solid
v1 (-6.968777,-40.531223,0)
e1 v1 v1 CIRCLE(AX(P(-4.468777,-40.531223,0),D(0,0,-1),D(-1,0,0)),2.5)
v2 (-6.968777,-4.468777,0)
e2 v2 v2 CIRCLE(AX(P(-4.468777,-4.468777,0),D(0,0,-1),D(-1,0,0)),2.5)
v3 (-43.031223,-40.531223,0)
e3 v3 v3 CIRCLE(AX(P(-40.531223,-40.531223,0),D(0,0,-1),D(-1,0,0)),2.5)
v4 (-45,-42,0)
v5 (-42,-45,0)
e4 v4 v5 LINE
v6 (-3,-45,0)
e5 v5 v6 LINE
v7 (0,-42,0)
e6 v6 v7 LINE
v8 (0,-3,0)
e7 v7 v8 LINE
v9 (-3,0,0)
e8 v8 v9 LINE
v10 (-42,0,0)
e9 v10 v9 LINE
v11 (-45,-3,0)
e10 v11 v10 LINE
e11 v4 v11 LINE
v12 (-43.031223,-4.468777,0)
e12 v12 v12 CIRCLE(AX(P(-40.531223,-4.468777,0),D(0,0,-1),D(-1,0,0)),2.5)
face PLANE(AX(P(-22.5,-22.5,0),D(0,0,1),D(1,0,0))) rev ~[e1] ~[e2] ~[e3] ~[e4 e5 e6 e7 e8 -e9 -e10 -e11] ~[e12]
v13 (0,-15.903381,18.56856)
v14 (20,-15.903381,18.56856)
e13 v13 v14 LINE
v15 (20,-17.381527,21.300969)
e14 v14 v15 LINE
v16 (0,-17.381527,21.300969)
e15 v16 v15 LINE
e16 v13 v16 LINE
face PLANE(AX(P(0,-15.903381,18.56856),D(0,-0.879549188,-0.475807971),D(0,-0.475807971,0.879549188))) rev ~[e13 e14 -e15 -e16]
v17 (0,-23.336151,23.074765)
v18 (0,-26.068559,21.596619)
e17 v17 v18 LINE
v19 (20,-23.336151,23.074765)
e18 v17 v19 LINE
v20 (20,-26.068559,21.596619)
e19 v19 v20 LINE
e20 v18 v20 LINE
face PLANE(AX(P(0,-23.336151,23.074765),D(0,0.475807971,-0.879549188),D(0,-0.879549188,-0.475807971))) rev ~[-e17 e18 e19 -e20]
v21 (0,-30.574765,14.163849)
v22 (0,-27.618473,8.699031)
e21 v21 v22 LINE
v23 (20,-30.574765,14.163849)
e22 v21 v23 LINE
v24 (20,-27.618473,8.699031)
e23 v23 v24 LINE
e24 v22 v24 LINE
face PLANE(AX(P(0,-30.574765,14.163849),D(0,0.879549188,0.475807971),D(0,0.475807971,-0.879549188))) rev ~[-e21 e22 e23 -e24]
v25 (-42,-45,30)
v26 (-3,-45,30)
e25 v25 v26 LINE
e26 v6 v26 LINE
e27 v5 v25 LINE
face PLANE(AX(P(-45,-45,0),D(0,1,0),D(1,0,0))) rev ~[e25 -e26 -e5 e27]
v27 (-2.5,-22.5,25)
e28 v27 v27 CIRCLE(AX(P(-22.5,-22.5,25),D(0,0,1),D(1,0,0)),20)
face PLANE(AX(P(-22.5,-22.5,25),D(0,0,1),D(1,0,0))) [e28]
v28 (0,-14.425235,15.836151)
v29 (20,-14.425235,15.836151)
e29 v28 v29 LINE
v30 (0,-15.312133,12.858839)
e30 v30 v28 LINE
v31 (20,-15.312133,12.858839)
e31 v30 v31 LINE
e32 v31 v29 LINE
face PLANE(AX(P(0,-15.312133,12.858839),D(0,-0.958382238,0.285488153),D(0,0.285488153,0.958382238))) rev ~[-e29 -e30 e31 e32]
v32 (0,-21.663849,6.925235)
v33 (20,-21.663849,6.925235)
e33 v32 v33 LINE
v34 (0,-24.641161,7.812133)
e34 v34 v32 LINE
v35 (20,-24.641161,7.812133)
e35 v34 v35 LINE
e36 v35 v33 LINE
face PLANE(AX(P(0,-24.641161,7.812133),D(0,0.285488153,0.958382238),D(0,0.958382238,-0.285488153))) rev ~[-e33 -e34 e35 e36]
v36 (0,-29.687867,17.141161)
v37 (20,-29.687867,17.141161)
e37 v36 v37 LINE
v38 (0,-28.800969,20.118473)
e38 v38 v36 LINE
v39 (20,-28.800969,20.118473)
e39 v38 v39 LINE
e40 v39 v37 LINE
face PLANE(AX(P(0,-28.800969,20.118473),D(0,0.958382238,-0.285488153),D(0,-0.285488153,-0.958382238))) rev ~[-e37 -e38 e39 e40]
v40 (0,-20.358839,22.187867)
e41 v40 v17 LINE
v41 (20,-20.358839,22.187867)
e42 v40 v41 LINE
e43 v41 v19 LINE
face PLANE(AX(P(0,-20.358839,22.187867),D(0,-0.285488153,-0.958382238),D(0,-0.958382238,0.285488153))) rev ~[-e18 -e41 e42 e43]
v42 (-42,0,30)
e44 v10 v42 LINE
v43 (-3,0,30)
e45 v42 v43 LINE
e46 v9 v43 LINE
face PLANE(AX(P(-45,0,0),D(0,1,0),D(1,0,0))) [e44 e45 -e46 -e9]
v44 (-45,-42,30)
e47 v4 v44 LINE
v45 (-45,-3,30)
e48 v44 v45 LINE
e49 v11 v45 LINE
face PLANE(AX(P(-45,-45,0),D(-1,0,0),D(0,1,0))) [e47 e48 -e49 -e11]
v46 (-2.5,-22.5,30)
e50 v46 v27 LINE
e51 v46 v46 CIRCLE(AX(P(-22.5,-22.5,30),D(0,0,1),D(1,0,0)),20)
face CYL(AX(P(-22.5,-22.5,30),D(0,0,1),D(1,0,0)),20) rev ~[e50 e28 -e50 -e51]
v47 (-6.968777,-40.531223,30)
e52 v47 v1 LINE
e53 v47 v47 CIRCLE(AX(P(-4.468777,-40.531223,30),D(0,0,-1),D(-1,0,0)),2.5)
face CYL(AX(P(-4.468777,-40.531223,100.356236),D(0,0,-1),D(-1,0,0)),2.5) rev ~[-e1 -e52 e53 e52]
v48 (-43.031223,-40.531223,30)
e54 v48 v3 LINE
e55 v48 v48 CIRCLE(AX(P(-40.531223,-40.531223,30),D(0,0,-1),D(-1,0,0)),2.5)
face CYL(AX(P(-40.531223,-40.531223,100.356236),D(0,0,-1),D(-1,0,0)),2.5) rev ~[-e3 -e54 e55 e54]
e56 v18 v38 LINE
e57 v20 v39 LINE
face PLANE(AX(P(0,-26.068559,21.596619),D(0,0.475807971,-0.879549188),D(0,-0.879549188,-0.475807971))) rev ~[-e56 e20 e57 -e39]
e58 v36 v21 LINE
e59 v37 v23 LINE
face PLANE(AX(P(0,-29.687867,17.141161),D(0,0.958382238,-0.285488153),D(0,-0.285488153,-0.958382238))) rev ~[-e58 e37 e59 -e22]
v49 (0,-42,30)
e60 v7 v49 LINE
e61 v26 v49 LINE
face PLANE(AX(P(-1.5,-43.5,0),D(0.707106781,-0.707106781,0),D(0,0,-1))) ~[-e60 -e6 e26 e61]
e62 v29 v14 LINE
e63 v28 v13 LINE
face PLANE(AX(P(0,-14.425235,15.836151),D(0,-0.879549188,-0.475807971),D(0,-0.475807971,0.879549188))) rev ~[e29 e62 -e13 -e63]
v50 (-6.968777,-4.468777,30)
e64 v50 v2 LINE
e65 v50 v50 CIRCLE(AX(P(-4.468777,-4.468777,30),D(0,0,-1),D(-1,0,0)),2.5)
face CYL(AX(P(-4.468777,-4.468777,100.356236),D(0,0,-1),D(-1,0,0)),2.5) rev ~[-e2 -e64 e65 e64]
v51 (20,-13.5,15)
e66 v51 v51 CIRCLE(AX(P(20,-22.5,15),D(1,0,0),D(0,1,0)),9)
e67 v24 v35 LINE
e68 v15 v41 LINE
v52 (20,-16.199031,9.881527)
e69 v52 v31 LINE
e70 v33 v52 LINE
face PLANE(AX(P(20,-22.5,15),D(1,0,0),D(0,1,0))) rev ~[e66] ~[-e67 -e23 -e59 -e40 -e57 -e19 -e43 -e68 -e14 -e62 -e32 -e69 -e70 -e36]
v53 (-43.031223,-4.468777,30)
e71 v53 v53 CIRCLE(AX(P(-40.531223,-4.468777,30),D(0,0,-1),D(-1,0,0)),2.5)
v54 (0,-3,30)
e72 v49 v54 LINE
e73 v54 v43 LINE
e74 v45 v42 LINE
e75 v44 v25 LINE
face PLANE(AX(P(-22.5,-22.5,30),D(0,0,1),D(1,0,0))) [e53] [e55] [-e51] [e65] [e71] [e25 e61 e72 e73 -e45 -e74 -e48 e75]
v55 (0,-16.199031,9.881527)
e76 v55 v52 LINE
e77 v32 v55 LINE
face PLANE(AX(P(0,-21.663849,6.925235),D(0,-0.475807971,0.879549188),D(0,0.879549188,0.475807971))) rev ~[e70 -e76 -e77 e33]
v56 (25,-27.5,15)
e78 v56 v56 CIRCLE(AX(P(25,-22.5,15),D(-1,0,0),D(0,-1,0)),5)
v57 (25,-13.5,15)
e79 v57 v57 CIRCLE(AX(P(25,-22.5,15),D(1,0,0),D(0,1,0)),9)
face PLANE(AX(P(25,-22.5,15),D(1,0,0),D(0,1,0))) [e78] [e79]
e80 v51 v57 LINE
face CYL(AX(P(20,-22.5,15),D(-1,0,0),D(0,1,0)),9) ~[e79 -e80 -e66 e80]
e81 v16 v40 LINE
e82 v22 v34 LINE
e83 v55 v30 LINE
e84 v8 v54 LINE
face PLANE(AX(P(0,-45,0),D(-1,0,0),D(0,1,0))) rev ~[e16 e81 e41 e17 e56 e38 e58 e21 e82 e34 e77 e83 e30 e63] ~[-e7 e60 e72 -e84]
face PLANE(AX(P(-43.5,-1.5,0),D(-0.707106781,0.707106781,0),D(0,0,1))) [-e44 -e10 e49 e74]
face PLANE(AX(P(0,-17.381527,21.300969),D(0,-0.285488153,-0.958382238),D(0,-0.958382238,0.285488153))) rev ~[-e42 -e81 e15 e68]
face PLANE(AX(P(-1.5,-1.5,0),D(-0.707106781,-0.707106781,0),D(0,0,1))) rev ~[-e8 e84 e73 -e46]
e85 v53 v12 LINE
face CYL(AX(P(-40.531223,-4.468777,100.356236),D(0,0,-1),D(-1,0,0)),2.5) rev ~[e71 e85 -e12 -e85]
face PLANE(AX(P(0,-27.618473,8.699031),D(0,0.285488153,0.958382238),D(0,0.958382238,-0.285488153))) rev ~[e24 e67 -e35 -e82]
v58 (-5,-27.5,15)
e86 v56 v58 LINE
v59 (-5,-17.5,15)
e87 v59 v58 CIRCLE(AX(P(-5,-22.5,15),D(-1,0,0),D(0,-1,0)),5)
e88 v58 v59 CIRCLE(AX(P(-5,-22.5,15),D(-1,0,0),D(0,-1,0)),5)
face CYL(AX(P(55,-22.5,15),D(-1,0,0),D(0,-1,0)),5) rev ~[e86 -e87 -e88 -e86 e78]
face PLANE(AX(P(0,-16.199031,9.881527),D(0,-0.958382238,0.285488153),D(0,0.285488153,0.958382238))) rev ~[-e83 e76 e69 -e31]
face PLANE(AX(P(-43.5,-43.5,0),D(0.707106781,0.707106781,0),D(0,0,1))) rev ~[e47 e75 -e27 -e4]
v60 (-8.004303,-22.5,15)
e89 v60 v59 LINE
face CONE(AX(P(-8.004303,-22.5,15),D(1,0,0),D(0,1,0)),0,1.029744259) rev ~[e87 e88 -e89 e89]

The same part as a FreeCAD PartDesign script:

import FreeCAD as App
import Part
import Sketcher


def edges_at(feature, points):
    """Names of the edges that pass closest to the given points."""
    edges = feature.Shape.Edges
    near = lambda p: min(range(len(edges)), key=lambda i: edges[i].distToShape(Part.Vertex(*p))[0])
    return sorted({f"Edge{near(p) + 1}" for p in points})


def add_polygon(sketch, points):
    """Adds a closed chain of lines whose ends are joined by coincident constraints."""
    first, n = sketch.GeometryCount, len(points)
    for a, b in zip(points, points[1:] + points[:1]):
        sketch.addGeometry(Part.LineSegment(App.Vector(*a, 0), App.Vector(*b, 0)), False)
    for i in range(n):
        sketch.addConstraint(Sketcher.Constraint("Coincident", first + i, 2, first + (i + 1) % n, 1))

doc = App.newDocument("Part")
body = doc.addObject("PartDesign::Body", "Body")

# Sketch on XY plane
sketch1 = doc.addObject("Sketcher::SketchObject", "Sketch")
body.addObject(sketch1)
sketch1.AttachmentSupport = (doc.XY_Plane, [""])
sketch1.MapMode = "FlatFace"
add_polygon(sketch1, [(-45, 0), (-45, -45), (0, -45), (0, 0)])  # lines 0-3
sketch1.addConstraint(Sketcher.Constraint("Vertical", 0))
sketch1.addConstraint(Sketcher.Constraint("Horizontal", 1))
sketch1.addConstraint(Sketcher.Constraint("Vertical", 2))
sketch1.addConstraint(Sketcher.Constraint("Horizontal", 3))
sketch1.addConstraint(Sketcher.Constraint("Coincident", 2, 2, -1, 1))
sketch1.addConstraint(Sketcher.Constraint("Equal", 3, 0))
sketch1.addConstraint(Sketcher.Constraint("DistanceX", 1, 1, 1, 2, 45.0))
pad1 = doc.addObject("PartDesign::Pad", "Pad")
body.addObject(pad1)
pad1.Profile = sketch1
pad1.Length = 30
doc.recompute()

chamfer = doc.addObject("PartDesign::Chamfer", "Chamfer")
body.addObject(chamfer)
chamfer.Base = (pad1, edges_at(pad1, [
    (-45, -45, 15),
    (0, -45, 15),
    (0, 0, 15),
    (-45, 0, 15),
]))
chamfer.Size = 3

# Sketch on XY plane
sketch2 = doc.addObject("Sketcher::SketchObject", "Sketch001")
body.addObject(sketch2)
sketch2.AttachmentSupport = (doc.XY_Plane, [""])
sketch2.MapMode = "FlatFace"
sketch2.AttachmentOffset = App.Placement(App.Vector(0, 0, 30), App.Rotation())
sketch2.addGeometry(Part.Circle(App.Vector(-40.5, -40.5, 0), App.Vector(0, 0, 1), 2.5), False)
sketch2.addGeometry(Part.Circle(App.Vector(-40.5, -4.5, 0), App.Vector(0, 0, 1), 2.5), False)
sketch2.addGeometry(Part.Circle(App.Vector(-4.5, -4.5, 0), App.Vector(0, 0, 1), 2.5), False)
sketch2.addGeometry(Part.Circle(App.Vector(-4.5, -40.5, 0), App.Vector(0, 0, 1), 2.5), False)
sketch2.addConstraint(Sketcher.Constraint("Equal", 0, 1))
sketch2.addConstraint(Sketcher.Constraint("Equal", 1, 2))
sketch2.addConstraint(Sketcher.Constraint("Equal", 2, 3))
sketch2.addConstraint(Sketcher.Constraint("Horizontal", 1, 3, 2, 3))
sketch2.addConstraint(Sketcher.Constraint("Horizontal", 0, 3, 3, 3))
sketch2.addConstraint(Sketcher.Constraint("Vertical", 0, 3, 1, 3))
sketch2.addConstraint(Sketcher.Constraint("Vertical", 2, 3, 3, 3))
sketch2.addConstraint(Sketcher.Constraint("Diameter", 0, 5.0))
sketch2.addConstraint(Sketcher.Constraint("DistanceX", 0, 3, -1, 1, 40.531223))
sketch2.addConstraint(Sketcher.Constraint("DistanceY", 0, 3, -1, 1, 40.531223))
sketch2.addConstraint(Sketcher.Constraint("DistanceY", 1, 3, -1, 1, 4.468777))
sketch2.addConstraint(Sketcher.Constraint("DistanceX", 2, 3, -1, 1, 4.468777))
doc.recompute()
hole = doc.addObject("PartDesign::Hole", "Hole")
body.addObject(hole)
hole.Profile = sketch2
hole.ThreadType = "None"
hole.Diameter = 5
hole.DepthType = "ThroughAll"

# Sketch on YZ plane
sketch3 = doc.addObject("Sketcher::SketchObject", "Sketch002")
body.addObject(sketch3)
sketch3.AttachmentSupport = (doc.YZ_Plane, [""])
sketch3.MapMode = "FlatFace"
add_polygon(sketch3, [(-27.6, 8.7), (-24.6, 7.8), (-21.7, 6.9), (-16.2, 9.9), (-15.3, 12.9), (-14.4, 15.8), (-15.9, 18.6), (-17.4, 21.3), (-20.4, 22.2), (-23.3, 23.1), (-26.1, 21.6), (-28.8, 20.1), (-29.7, 17.1), (-30.6, 14.2)])  # lines 0-13
sketch3.addConstraint(Sketcher.Constraint("Parallel", 0, 1))
sketch3.addConstraint(Sketcher.Constraint("Perpendicular", 1, 3))
sketch3.addConstraint(Sketcher.Constraint("Parallel", 3, 4))
sketch3.addConstraint(Sketcher.Constraint("Perpendicular", 2, 5))
sketch3.addConstraint(Sketcher.Constraint("Parallel", 5, 6))
sketch3.addConstraint(Sketcher.Constraint("Perpendicular", 4, 7))
sketch3.addConstraint(Sketcher.Constraint("Parallel", 7, 8))
sketch3.addConstraint(Sketcher.Constraint("Perpendicular", 6, 9))
sketch3.addConstraint(Sketcher.Constraint("Parallel", 9, 10))
sketch3.addConstraint(Sketcher.Constraint("Perpendicular", 8, 11))
sketch3.addConstraint(Sketcher.Constraint("Parallel", 11, 12))
sketch3.addConstraint(Sketcher.Constraint("Perpendicular", 10, 13))
sketch3.addConstraint(Sketcher.Constraint("Equal", 0, 1))
sketch3.addConstraint(Sketcher.Constraint("Equal", 1, 3))
sketch3.addConstraint(Sketcher.Constraint("Equal", 3, 4))
sketch3.addConstraint(Sketcher.Constraint("Equal", 4, 5))
sketch3.addConstraint(Sketcher.Constraint("Equal", 5, 6))
sketch3.addConstraint(Sketcher.Constraint("Equal", 6, 7))
sketch3.addConstraint(Sketcher.Constraint("Equal", 7, 8))
sketch3.addConstraint(Sketcher.Constraint("Equal", 8, 9))
sketch3.addConstraint(Sketcher.Constraint("Equal", 9, 10))
sketch3.addConstraint(Sketcher.Constraint("Equal", 10, 11))
sketch3.addConstraint(Sketcher.Constraint("Equal", 11, 12))
sketch3.addConstraint(Sketcher.Constraint("Distance", 0, 3.106602))
sketch3.addConstraint(Sketcher.Constraint("DistanceY", 1, 2, 0, 2, 0.886898))
sketch3.addConstraint(Sketcher.Constraint("DistanceX", 0, 2, -1, 1, 24.641161))
sketch3.addConstraint(Sketcher.Constraint("DistanceX", 2, 2, -1, 1, 16.199031))
sketch3.addConstraint(Sketcher.Constraint("DistanceY", -1, 1, 3, 2, 12.858839))
pad2 = doc.addObject("PartDesign::Pad", "Pad001")
body.addObject(pad2)
pad2.Profile = sketch3
pad2.Length = 20

# Sketch on YZ plane
sketch4 = doc.addObject("Sketcher::SketchObject", "Sketch003")
body.addObject(sketch4)
sketch4.AttachmentSupport = (doc.YZ_Plane, [""])
sketch4.MapMode = "FlatFace"
sketch4.AttachmentOffset = App.Placement(App.Vector(0, 0, 20), App.Rotation())
sketch4.addGeometry(Part.Circle(App.Vector(-22, 15, 0), App.Vector(0, 0, 1), 9), False)
sketch4.addConstraint(Sketcher.Constraint("Diameter", 0, 18.0))
sketch4.addConstraint(Sketcher.Constraint("DistanceY", -1, 1, 0, 3, 15.0))
sketch4.addConstraint(Sketcher.Constraint("DistanceX", 0, 3, -1, 1, 22.5))
pad3 = doc.addObject("PartDesign::Pad", "Pad002")
body.addObject(pad3)
pad3.Profile = sketch4
pad3.Length = 5

# Sketch on YZ plane
sketch5 = doc.addObject("Sketcher::SketchObject", "Sketch004")
body.addObject(sketch5)
sketch5.AttachmentSupport = (doc.YZ_Plane, [""])
sketch5.MapMode = "FlatFace"
sketch5.AttachmentOffset = App.Placement(App.Vector(0, 0, 25), App.Rotation())
sketch5.addGeometry(Part.Circle(App.Vector(-22, 15, 0), App.Vector(0, 0, 1), 5), False)
sketch5.addConstraint(Sketcher.Constraint("Diameter", 0, 10.0))
sketch5.addConstraint(Sketcher.Constraint("DistanceY", -1, 1, 0, 3, 15.0))
sketch5.addConstraint(Sketcher.Constraint("DistanceX", 0, 3, -1, 1, 22.5))
doc.recompute()
hole2 = doc.addObject("PartDesign::Hole", "Hole001")
body.addObject(hole2)
hole2.Profile = sketch5
hole2.ThreadType = "None"
hole2.Diameter = 10
hole2.DepthType = "Dimension"
hole2.Depth = 30
hole2.DrillPoint = "Angled"
hole2.DrillPointAngle = 118

# Sketch on XY plane
sketch6 = doc.addObject("Sketcher::SketchObject", "Sketch005")
body.addObject(sketch6)
sketch6.AttachmentSupport = (doc.XY_Plane, [""])
sketch6.MapMode = "FlatFace"
sketch6.AttachmentOffset = App.Placement(App.Vector(0, 0, 30), App.Rotation())
sketch6.addGeometry(Part.Circle(App.Vector(-22, -22, 0), App.Vector(0, 0, 1), 20), False)
sketch6.addConstraint(Sketcher.Constraint("Diameter", 0, 40.0))
sketch6.addConstraint(Sketcher.Constraint("DistanceX", 0, 3, -1, 1, 22.5))
sketch6.addConstraint(Sketcher.Constraint("DistanceY", 0, 3, -1, 1, 22.5))
pocket1 = doc.addObject("PartDesign::Pocket", "Pocket")
body.addObject(pocket1)
pocket1.Profile = sketch6
pocket1.Length = 5

doc.recompute()
